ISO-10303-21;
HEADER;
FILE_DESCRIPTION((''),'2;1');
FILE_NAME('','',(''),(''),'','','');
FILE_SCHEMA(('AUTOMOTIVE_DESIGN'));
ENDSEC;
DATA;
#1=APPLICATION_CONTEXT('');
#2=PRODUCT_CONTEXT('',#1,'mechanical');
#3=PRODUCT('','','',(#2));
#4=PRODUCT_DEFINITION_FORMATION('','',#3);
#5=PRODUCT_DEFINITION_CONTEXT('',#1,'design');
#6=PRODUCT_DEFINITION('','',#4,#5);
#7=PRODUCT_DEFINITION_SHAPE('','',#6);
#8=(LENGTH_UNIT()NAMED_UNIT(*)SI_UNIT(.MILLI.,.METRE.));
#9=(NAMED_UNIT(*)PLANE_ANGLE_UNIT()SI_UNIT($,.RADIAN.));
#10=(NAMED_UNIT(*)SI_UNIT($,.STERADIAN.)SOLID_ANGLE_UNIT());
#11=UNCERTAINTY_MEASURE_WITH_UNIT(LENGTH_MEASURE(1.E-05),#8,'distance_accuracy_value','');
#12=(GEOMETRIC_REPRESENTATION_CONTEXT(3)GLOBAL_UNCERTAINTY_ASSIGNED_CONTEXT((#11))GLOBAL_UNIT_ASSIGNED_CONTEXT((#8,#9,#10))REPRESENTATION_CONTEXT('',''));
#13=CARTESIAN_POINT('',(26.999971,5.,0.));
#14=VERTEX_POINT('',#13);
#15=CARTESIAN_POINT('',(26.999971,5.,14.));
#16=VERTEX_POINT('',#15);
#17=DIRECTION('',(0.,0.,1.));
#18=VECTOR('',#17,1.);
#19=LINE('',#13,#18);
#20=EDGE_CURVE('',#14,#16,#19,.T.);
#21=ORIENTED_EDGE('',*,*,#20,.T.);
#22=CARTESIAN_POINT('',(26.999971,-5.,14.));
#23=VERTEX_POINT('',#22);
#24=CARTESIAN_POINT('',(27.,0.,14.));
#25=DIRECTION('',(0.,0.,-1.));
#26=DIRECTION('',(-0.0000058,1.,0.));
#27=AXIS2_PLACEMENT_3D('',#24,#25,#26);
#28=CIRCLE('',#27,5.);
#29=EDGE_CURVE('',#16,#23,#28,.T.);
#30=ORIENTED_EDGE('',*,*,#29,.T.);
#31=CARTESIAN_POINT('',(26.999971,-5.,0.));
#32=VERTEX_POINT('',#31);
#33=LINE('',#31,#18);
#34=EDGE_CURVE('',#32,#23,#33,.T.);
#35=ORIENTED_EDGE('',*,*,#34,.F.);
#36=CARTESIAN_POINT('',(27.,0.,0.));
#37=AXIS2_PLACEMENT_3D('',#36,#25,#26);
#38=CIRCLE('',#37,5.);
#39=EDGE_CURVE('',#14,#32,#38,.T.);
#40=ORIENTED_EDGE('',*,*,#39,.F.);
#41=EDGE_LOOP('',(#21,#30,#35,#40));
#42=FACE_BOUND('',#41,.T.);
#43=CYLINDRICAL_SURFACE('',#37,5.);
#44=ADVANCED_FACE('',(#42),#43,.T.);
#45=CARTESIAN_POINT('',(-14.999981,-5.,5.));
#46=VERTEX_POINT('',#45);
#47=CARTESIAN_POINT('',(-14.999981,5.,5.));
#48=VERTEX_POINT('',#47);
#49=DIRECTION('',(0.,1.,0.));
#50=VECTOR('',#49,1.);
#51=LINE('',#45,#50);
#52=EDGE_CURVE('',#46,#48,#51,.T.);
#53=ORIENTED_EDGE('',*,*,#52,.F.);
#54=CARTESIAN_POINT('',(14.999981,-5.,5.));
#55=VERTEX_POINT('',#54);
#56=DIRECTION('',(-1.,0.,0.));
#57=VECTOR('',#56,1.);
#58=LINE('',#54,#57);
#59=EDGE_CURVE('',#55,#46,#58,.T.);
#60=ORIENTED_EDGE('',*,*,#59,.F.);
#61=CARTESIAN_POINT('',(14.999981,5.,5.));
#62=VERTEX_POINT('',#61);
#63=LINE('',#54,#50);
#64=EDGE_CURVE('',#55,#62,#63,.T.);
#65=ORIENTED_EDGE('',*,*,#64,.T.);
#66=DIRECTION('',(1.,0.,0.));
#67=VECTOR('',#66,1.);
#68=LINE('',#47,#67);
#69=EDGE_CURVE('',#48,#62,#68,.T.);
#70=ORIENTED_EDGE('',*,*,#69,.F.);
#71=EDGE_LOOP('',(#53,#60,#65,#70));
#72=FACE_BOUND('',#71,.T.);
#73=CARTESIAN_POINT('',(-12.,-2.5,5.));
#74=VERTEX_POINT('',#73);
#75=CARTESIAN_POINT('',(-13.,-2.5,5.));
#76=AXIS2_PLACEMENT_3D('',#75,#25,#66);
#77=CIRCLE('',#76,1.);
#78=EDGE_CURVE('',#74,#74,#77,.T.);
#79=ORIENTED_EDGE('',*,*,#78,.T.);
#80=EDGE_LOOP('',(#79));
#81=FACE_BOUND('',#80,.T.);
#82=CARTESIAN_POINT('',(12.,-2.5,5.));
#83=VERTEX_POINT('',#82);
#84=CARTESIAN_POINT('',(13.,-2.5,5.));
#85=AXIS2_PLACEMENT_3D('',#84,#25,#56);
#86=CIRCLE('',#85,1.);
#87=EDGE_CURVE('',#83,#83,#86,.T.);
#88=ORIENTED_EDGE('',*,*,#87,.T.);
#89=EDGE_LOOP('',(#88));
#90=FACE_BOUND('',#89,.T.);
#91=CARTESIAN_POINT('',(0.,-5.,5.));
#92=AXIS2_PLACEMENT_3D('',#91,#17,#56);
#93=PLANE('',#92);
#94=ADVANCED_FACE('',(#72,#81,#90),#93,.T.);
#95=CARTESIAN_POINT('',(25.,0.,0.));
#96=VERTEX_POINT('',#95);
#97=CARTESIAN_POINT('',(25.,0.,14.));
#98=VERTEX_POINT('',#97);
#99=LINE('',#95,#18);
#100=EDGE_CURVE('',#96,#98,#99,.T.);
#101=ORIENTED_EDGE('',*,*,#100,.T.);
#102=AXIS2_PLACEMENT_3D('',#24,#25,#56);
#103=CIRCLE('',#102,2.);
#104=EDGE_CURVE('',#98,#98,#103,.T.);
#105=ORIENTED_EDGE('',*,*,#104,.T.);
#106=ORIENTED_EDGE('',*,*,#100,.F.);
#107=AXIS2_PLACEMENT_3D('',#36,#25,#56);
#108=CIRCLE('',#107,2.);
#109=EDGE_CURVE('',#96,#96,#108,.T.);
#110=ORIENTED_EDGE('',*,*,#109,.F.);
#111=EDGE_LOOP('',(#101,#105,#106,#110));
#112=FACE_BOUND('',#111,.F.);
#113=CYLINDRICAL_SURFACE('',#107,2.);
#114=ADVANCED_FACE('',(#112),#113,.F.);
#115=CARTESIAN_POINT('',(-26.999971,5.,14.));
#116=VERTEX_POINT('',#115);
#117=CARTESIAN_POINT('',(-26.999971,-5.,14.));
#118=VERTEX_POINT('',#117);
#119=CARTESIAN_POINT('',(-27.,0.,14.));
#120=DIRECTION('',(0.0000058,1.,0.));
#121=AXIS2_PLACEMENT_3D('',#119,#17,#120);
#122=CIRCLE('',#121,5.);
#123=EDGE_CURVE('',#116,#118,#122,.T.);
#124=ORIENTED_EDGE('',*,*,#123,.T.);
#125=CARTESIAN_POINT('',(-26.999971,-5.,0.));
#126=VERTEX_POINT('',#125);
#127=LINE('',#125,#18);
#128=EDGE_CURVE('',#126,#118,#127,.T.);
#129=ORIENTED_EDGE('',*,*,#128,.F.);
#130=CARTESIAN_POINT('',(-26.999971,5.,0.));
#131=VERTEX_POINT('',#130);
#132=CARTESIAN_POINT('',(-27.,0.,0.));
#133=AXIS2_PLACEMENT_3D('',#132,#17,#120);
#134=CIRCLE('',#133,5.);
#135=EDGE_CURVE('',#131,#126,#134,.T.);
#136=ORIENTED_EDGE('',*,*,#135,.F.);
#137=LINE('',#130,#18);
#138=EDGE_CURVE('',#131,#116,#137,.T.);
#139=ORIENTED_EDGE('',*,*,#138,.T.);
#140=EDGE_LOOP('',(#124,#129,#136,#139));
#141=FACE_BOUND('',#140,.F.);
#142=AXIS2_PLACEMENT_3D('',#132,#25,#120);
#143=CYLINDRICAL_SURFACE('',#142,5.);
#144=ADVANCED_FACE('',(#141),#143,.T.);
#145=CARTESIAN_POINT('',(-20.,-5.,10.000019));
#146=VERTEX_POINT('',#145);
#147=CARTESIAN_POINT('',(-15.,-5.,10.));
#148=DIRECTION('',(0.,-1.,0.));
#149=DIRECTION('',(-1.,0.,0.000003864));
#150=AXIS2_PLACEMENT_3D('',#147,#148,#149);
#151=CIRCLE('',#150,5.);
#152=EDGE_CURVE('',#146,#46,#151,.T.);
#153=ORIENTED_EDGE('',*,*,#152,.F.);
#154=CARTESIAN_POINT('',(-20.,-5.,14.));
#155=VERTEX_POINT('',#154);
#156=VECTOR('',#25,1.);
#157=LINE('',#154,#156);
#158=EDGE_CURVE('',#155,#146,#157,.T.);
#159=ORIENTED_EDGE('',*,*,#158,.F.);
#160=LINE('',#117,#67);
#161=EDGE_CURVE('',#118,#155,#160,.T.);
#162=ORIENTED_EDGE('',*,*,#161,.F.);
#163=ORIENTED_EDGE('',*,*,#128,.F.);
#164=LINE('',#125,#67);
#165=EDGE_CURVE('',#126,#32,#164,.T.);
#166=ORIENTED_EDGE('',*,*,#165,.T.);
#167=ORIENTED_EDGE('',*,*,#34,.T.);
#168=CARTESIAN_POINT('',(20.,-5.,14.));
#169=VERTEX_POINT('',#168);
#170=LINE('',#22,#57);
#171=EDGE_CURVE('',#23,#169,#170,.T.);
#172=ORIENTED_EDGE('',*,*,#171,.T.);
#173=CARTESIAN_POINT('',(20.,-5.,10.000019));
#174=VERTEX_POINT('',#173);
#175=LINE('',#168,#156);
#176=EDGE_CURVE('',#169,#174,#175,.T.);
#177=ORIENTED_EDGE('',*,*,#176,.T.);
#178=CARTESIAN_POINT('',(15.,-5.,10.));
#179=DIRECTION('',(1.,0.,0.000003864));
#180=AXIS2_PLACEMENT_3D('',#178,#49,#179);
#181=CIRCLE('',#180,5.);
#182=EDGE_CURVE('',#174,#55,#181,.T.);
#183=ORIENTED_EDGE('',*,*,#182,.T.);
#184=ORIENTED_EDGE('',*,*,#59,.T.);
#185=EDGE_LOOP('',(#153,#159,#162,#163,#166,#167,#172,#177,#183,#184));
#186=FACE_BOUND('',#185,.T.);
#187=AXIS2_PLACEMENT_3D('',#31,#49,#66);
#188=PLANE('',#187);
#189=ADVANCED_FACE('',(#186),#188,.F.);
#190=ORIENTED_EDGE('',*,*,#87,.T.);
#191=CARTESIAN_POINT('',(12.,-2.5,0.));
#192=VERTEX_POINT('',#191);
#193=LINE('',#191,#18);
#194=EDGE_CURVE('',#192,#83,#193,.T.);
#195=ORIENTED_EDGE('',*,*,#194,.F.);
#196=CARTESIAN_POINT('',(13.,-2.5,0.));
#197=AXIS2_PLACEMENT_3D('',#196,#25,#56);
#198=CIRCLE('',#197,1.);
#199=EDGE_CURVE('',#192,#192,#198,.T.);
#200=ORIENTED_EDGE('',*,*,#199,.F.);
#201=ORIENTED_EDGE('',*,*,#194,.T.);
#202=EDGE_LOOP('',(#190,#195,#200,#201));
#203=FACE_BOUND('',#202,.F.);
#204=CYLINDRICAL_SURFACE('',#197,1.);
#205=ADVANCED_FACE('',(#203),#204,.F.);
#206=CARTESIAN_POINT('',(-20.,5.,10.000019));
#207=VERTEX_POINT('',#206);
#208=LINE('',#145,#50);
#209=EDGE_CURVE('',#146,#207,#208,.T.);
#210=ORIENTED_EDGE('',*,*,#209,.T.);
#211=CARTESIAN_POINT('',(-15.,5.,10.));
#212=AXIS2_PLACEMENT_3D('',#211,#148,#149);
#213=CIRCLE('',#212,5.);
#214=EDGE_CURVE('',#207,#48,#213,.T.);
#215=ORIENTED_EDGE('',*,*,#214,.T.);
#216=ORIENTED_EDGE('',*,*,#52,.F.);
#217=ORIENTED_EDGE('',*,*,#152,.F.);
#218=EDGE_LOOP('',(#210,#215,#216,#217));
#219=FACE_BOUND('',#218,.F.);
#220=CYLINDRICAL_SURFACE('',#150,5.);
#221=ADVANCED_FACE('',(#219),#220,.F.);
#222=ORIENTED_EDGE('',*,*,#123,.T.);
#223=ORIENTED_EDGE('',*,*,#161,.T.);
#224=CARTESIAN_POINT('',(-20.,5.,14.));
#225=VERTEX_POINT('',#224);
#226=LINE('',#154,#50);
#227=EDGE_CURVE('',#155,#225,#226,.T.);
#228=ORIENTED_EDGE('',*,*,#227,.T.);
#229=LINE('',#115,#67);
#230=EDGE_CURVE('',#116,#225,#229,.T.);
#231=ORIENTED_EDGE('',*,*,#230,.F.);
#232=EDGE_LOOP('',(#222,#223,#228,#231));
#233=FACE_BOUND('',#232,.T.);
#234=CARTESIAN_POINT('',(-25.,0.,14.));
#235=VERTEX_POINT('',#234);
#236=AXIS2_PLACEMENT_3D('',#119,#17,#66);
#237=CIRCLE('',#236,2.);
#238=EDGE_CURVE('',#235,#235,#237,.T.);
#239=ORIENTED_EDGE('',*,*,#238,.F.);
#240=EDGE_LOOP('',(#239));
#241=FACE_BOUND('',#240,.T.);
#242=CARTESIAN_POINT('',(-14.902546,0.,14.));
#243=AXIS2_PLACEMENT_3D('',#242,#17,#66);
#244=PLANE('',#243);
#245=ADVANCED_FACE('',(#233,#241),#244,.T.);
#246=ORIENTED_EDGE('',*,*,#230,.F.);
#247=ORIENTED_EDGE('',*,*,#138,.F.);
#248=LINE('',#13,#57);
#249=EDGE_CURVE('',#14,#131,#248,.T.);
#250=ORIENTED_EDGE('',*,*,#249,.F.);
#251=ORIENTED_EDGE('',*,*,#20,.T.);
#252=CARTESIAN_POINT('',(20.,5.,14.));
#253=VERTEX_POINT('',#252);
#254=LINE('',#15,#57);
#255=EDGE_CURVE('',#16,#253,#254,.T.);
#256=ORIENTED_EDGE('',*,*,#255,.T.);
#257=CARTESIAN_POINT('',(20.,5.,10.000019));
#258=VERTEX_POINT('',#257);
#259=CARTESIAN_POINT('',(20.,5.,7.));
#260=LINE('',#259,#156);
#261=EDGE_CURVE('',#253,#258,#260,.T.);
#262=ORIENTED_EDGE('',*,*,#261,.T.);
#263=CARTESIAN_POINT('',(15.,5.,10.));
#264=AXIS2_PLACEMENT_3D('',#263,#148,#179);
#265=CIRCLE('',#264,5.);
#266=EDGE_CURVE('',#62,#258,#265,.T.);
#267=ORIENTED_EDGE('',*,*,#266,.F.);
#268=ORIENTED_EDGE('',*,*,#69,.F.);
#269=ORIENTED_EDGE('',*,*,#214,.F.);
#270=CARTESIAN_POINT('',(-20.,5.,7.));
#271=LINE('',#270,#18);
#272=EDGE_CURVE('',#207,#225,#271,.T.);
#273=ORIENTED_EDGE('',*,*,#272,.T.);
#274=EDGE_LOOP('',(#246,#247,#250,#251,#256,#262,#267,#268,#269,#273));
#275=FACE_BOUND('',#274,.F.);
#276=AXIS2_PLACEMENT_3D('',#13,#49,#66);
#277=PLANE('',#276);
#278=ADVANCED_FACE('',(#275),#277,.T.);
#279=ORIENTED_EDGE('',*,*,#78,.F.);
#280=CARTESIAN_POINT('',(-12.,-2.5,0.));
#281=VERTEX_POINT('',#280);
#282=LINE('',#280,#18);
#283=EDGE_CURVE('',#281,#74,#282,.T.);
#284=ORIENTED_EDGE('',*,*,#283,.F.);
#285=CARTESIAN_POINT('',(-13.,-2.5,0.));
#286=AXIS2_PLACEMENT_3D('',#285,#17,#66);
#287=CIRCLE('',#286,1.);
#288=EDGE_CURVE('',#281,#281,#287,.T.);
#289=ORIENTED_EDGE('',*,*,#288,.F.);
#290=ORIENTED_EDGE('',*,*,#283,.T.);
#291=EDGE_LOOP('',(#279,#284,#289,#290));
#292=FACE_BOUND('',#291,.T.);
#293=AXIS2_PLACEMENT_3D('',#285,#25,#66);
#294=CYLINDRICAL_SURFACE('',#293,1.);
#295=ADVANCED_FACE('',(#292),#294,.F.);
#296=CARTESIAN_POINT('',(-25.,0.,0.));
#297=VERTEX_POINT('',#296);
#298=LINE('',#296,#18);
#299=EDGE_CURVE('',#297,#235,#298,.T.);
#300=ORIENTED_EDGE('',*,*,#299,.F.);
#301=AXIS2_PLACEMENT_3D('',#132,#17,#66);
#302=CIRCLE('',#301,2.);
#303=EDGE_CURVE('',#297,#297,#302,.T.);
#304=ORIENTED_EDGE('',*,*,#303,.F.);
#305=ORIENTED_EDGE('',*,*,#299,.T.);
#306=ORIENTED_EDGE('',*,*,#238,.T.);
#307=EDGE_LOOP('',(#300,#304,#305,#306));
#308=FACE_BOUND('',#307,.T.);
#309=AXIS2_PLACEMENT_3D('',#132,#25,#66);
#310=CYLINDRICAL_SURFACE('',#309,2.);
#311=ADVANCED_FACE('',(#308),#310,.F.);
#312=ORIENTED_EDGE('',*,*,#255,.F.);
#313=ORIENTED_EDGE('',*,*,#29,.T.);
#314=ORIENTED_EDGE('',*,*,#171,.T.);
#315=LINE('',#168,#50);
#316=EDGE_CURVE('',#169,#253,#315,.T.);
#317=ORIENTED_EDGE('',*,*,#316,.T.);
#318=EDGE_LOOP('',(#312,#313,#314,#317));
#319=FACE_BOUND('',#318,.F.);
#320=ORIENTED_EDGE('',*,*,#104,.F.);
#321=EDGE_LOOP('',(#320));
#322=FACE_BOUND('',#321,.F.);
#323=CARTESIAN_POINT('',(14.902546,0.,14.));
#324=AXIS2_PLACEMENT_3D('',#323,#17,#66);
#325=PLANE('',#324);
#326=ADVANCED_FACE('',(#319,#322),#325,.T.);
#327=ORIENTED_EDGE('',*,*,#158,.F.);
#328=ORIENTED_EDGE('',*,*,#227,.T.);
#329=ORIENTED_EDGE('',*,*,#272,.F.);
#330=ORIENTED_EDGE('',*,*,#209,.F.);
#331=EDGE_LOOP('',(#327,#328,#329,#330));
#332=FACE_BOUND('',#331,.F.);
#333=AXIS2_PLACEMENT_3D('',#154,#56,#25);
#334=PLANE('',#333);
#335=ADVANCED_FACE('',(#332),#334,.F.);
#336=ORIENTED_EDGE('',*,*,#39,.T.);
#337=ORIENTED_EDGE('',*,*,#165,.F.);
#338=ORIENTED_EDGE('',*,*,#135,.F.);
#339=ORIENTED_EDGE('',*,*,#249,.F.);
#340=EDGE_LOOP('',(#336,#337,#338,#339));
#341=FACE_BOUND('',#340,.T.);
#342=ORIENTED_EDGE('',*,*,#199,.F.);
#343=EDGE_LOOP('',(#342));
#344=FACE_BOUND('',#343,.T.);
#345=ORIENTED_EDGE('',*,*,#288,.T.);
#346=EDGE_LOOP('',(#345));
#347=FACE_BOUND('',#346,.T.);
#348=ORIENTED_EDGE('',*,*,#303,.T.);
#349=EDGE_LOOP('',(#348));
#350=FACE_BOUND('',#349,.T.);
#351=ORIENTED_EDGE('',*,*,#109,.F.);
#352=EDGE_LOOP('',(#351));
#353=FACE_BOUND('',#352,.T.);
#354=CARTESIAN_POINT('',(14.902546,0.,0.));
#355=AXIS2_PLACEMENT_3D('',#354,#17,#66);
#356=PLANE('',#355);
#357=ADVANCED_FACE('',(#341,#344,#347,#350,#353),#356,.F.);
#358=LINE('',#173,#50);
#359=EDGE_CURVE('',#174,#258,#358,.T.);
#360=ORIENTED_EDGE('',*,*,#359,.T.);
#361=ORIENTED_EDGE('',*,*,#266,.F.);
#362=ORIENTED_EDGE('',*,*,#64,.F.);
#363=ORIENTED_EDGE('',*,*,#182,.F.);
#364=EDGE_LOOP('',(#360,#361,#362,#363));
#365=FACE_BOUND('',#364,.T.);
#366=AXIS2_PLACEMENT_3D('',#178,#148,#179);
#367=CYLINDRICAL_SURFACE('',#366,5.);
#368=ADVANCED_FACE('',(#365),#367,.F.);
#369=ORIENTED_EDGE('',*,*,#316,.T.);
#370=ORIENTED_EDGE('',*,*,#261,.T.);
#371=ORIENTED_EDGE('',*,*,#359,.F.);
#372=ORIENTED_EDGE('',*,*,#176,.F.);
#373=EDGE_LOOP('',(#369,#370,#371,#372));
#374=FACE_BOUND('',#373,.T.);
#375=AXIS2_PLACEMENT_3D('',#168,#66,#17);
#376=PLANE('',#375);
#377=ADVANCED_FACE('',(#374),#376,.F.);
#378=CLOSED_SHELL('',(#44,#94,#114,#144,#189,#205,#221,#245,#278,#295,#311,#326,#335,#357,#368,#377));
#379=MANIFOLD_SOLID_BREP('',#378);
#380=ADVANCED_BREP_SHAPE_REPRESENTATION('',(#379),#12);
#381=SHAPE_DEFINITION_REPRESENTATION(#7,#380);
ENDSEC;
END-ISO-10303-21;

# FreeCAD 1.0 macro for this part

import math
import FreeCAD as App
import Part
import Sketcher

V = App.Vector

doc = App.newDocument("Part")
body = doc.addObject("PartDesign::Body", "Body")

sketch1 = body.newObject("Sketcher::SketchObject", "Sketch")
sketch1.AttachmentSupport = (doc.getObject("XY_Plane"), [""])
sketch1.MapMode = "FlatFace"
sketch1.addGeometry([
    Part.ArcOfCircle(Part.Circle(V(-27, 0, 0), V(0, 0, 1), 5), math.radians(90), math.radians(270)),
    Part.LineSegment(V(-27, -5, 0), V(0, -5, 0)),
    Part.LineSegment(V(0, -5, 0), V(0, 5, 0)),
    Part.LineSegment(V(0, 5, 0), V(-27, 5, 0)),
    Part.Circle(V(-13, -2.5, 0), V(0, 0, 1), 1),
    Part.Circle(V(-27, 0, 0), V(0, 0, 1), 2),
], False)
sketch1.addConstraint([
    Sketcher.Constraint("Coincident", 0, 2, 1, 1),
    Sketcher.Constraint("Coincident", 1, 2, 2, 1),
    Sketcher.Constraint("Coincident", 2, 2, 3, 1),
    Sketcher.Constraint("Coincident", 3, 2, 0, 1),
    Sketcher.Constraint("Horizontal", 1),
    Sketcher.Constraint("Vertical", 2),
    Sketcher.Constraint("Horizontal", 3),
    Sketcher.Constraint("Coincident", 5, 3, 0, 3),
    Sketcher.Constraint("Symmetric", 1, 2, 2, 2, -1, 1),
    Sketcher.Constraint("Vertical", 0, 2, 3, 2),
    Sketcher.Constraint("Diameter", 4, 2.0),
    Sketcher.Constraint("Diameter", 5, 4.0),
    Sketcher.Constraint("Radius", 0, 5.0),
    Sketcher.Constraint("DistanceX", 0, 3, -1, 1, 27.0),
    Sketcher.Constraint("DistanceX", 4, 3, -1, 1, 13.0),
    Sketcher.Constraint("DistanceY", 4, 3, -1, 1, 2.5),
    Sketcher.Constraint("DistanceX", 1, 1, 1, 2, 26.999971),
])
pad1 = body.newObject("PartDesign::Pad", "Pad")
pad1.Profile = sketch1
pad1.Length = 14

sketch2 = body.newObject("Sketcher::SketchObject", "Sketch001")
sketch2.AttachmentSupport = (doc.getObject("XZ_Plane"), [""])
sketch2.MapMode = "FlatFace"
sketch2.AttachmentOffset = App.Placement(V(0, 0, 5), App.Rotation())
sketch2.addGeometry([
    Part.LineSegment(V(-20, 14, 0), V(-20, 10, 0)),
    Part.ArcOfCircle(Part.Circle(V(-15, 10, 0), V(0, 0, 1), 5), math.radians(180), math.radians(270)),
    Part.LineSegment(V(-15, 5, 0), V(0, 5, 0)),
    Part.LineSegment(V(0, 5, 0), V(0, 14, 0)),
    Part.LineSegment(V(0, 14, 0), V(-20, 14, 0)),
], False)
sketch2.addConstraint([
    Sketcher.Constraint("Coincident", 0, 2, 1, 1),
    Sketcher.Constraint("Coincident", 1, 2, 2, 1),
    Sketcher.Constraint("Coincident", 2, 2, 3, 1),
    Sketcher.Constraint("Coincident", 3, 2, 4, 1),
    Sketcher.Constraint("Coincident", 4, 2, 0, 1),
    Sketcher.Constraint("Vertical", 0),
    Sketcher.Constraint("Horizontal", 2),
    Sketcher.Constraint("Vertical", 3),
    Sketcher.Constraint("Horizontal", 4),
    Sketcher.Constraint("PointOnObject", 2, 2, -2),
    Sketcher.Constraint("Radius", 1, 5.0),
    Sketcher.Constraint("DistanceX", 4, 2, 4, 1, 20.0),
    Sketcher.Constraint("DistanceY", 3, 1, 3, 2, 9.0),
    Sketcher.Constraint("DistanceY", -1, 1, 1, 3, 10.0),
    Sketcher.Constraint("DistanceX", 2, 1, 2, 2, 14.999981),
    Sketcher.Constraint("DistanceY", 0, 2, 0, 1, 3.999981),
])
pocket1 = body.newObject("PartDesign::Pocket", "Pocket")
pocket1.Profile = sketch2
pocket1.Type = "ThroughAll"
doc.recompute()

mirrored = body.newObject("PartDesign::Mirrored", "Mirrored")
mirrored.Originals = [pad1, pocket1]
mirrored.MirrorPlane = (doc.getObject("YZ_Plane"), [""])
body.Tip = mirrored

doc.recompute()
